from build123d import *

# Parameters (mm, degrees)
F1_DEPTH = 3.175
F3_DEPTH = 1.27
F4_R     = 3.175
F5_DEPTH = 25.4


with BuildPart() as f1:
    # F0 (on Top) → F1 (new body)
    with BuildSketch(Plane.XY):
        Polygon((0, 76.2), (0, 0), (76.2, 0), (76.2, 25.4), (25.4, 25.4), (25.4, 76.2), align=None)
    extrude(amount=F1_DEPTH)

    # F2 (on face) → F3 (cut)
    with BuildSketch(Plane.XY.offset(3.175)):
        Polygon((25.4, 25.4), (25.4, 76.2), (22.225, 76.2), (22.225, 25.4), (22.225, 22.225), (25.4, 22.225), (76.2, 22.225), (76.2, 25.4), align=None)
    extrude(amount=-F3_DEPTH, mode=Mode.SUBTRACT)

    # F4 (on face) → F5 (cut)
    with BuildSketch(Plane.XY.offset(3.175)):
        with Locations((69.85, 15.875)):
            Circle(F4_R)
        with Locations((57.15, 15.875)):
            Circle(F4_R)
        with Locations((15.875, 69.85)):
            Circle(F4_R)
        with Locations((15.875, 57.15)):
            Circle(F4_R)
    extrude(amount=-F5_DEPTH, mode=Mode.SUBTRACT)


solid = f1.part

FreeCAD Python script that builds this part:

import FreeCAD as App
import Part
import Sketcher

V = App.Vector
Q = App.Units.Quantity


def add_polygon(sketch, points):
    """Adds a closed chain of lines whose ends are joined by coincident constraints."""
    first, n = sketch.GeometryCount, len(points)
    for a, b in zip(points, points[1:] + points[:1]):
        sketch.addGeometry(Part.LineSegment(App.Vector(*a, 0), App.Vector(*b, 0)), False)
    for i in range(n):
        sketch.addConstraint(Sketcher.Constraint("Coincident", first + i, 2, first + (i + 1) % n, 1))

doc = App.newDocument("Part")
body = doc.addObject("PartDesign::Body", "Body")

# Sketch on XY plane
sketch1 = body.newObject("Sketcher::SketchObject", "Sketch")
sketch1.AttachmentSupport = (doc.getObject("XY_Plane"), [""])
sketch1.MapMode = "FlatFace"
add_polygon(sketch1, [(0, 76.2), (0, 0), (76.2, 0), (76.2, 25.4), (25.4, 25.4), (25.4, 76.2)])  # lines 0-5
sketch1.addConstraint([
    Sketcher.Constraint("Vertical", 0),
    Sketcher.Constraint("Horizontal", 1),
    Sketcher.Constraint("Vertical", 2),
    Sketcher.Constraint("Horizontal", 3),
    Sketcher.Constraint("Vertical", 4),
    Sketcher.Constraint("Horizontal", 5),
    Sketcher.Constraint("Coincident", 0, 2, -1, 1),
    Sketcher.Constraint("Equal", 1, 0),
    Sketcher.Constraint("Equal", 5, 2),
    Sketcher.Constraint("DistanceX", 1, 1, 1, 2, Q("3 in")),
    Sketcher.Constraint("DistanceX", 3, 2, 3, 1, Q("2 in")),
])
pad1 = body.newObject("PartDesign::Pad", "Pad")
pad1.Profile = sketch1
pad1.Length = Q("0.125 in")

# Sketch on XY plane
sketch2 = body.newObject("Sketcher::SketchObject", "Sketch001")
sketch2.AttachmentSupport = (doc.getObject("XY_Plane"), [""])
sketch2.MapMode = "FlatFace"
sketch2.AttachmentOffset = App.Placement(V(0, 0, 0.125 * 25.4), App.Rotation())
add_polygon(sketch2, [(25.4, 25.4), (25.4, 76.2), (22.225, 76.2), (22.225, 22.225), (76.2, 22.225), (76.2, 25.4)])  # lines 0-5
sketch2.addConstraint([
    Sketcher.Constraint("Vertical", 0),
    Sketcher.Constraint("Horizontal", 1),
    Sketcher.Constraint("Vertical", 2),
    Sketcher.Constraint("Horizontal", 3),
    Sketcher.Constraint("Vertical", 4),
    Sketcher.Constraint("Horizontal", 5),
    Sketcher.Constraint("Equal", 5, 0),
    Sketcher.Constraint("Equal", 3, 2),
    Sketcher.Constraint("DistanceX", 5, 2, 5, 1, Q("2 in")),
    Sketcher.Constraint("DistanceX", -1, 1, 0, 2, Q("1 in")),
    Sketcher.Constraint("DistanceY", -1, 1, 0, 2, Q("3 in")),
    Sketcher.Constraint("DistanceX", 1, 2, 1, 1, Q("0.125 in")),
])
pocket1 = body.newObject("PartDesign::Pocket", "Pocket")
pocket1.Profile = sketch2
pocket1.Length = Q("0.05 in")

# Sketch on XY plane
sketch3 = body.newObject("Sketcher::SketchObject", "Sketch002")
sketch3.AttachmentSupport = (doc.getObject("XY_Plane"), [""])
sketch3.MapMode = "FlatFace"
sketch3.AttachmentOffset = App.Placement(V(0, 0, 0.125 * 25.4), App.Rotation())
sketch3.addGeometry([
    Part.Circle(V(69.85, 15.875, 0), V(0, 0, 1), 3.175),
    Part.Circle(V(57.15, 15.875, 0), V(0, 0, 1), 3.175),
    Part.Circle(V(15.875, 69.85, 0), V(0, 0, 1), 3.175),
    Part.Circle(V(15.875, 57.15, 0), V(0, 0, 1), 3.175),
], False)
sketch3.addConstraint([
    Sketcher.Constraint("Equal", 0, 1),
    Sketcher.Constraint("Equal", 1, 2),
    Sketcher.Constraint("Equal", 2, 3),
    Sketcher.Constraint("Horizontal", 0, 3, 1, 3),
    Sketcher.Constraint("Vertical", 2, 3, 3, 3),
    Sketcher.Constraint("Diameter", 0, Q("0.25 in")),
    Sketcher.Constraint("DistanceX", 1, 3, 0, 3, Q("0.5 in")),
    Sketcher.Constraint("DistanceY", 3, 3, 2, 3, Q("0.5 in")),
    Sketcher.Constraint("DistanceX", -1, 1, 0, 3, Q("2.75 in")),
    Sketcher.Constraint("DistanceY", -1, 1, 2, 3, Q("2.75 in")),
    Sketcher.Constraint("DistanceY", -1, 1, 0, 3, Q("0.625 in")),
    Sketcher.Constraint("DistanceX", -1, 1, 2, 3, Q("0.625 in")),
])
pocket2 = body.newObject("PartDesign::Pocket", "Pocket001")
pocket2.Profile = sketch3
pocket2.Length = Q("1 in")

doc.recompute()
